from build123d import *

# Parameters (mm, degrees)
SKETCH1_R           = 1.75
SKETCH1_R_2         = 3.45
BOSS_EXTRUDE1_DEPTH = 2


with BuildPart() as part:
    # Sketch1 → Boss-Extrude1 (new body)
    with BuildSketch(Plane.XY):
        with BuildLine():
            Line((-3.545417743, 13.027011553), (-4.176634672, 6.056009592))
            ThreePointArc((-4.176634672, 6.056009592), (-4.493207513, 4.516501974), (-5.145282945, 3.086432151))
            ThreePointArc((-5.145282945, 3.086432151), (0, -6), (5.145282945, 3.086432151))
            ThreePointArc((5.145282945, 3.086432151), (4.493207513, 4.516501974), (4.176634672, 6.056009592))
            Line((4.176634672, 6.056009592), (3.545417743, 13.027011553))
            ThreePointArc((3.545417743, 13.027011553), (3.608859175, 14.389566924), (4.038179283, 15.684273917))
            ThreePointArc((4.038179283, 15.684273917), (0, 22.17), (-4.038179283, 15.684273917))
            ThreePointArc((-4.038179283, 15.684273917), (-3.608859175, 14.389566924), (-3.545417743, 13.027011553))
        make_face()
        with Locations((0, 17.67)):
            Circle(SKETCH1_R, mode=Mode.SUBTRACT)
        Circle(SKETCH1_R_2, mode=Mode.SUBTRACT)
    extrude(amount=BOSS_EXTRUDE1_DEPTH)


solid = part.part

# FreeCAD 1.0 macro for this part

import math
import FreeCAD as App
import Part
import Sketcher
Q = App.Units.Quantity

doc = App.newDocument("Part")
body = doc.addObject("PartDesign::Body", "Body")

# Sketch on XY plane
sketch1 = body.newObject("Sketcher::SketchObject", "Sketch")
sketch1.AttachmentSupport = (doc.getObject("XY_Plane"), [""])
sketch1.MapMode = "FlatFace"
sketch1.addGeometry([
    Part.LineSegment(App.Vector(-3.545418, 13.027012, 0), App.Vector(-4.176635, 6.05601, 0)),  # 0
    Part.ArcOfCircle(Part.Circle(App.Vector(-11.148113, 6.68727, 0), App.Vector(0, 0, 1), 7), math.radians(-30.957717), math.radians(-5.173963)),  # 1
    Part.ArcOfCircle(Part.Circle(App.Vector(0, 0, 0), App.Vector(0, 0, 1), 6), math.radians(149.042283), math.radians(390.957717)),  # 2
    Part.ArcOfCircle(Part.Circle(App.Vector(11.148113, 6.68727, 0), App.Vector(0, 0, 1), 7), math.radians(-174.826037), math.radians(-149.042283)),  # 3
    Part.LineSegment(App.Vector(4.176635, 6.05601, 0), App.Vector(3.545418, 13.027012, 0)),  # 4
    Part.ArcOfCircle(Part.Circle(App.Vector(8.525045, 13.477912, 0), App.Vector(0, 0, 1), 5), math.radians(153.814903), math.radians(185.173963)),  # 5
    Part.ArcOfCircle(Part.Circle(App.Vector(0, 17.67, 0), App.Vector(0, 0, 1), 4.5), math.radians(-26.185097), math.radians(206.185097)),  # 6
    Part.ArcOfCircle(Part.Circle(App.Vector(-8.525045, 13.477912, 0), App.Vector(0, 0, 1), 5), math.radians(-5.173963), math.radians(26.185097)),  # 7
    Part.Circle(App.Vector(0, 0, 0), App.Vector(0, 0, 1), 3.45),  # 8
    Part.Circle(App.Vector(0, 17.67, 0), App.Vector(0, 0, 1), 1.75),  # 9
], False)
sketch1.addConstraint([
    Sketcher.Constraint("Tangent", 0, 2, 1, 2),
    Sketcher.Constraint("Tangent", 1, 1, 2, 1),
    Sketcher.Constraint("Tangent", 2, 2, 3, 2),
    Sketcher.Constraint("Tangent", 3, 1, 4, 1),
    Sketcher.Constraint("Tangent", 4, 2, 5, 2),
    Sketcher.Constraint("Tangent", 5, 1, 6, 1),
    Sketcher.Constraint("Tangent", 6, 2, 7, 2),
    Sketcher.Constraint("Tangent", 7, 1, 0, 1),
    Sketcher.Constraint("Coincident", 2, 3, -1, 1),
    Sketcher.Constraint("Coincident", 8, 3, -1, 1),
    Sketcher.Constraint("Coincident", 9, 3, 6, 3),
    Sketcher.Constraint("Equal", 1, 3),
    Sketcher.Constraint("Equal", 5, 7),
    Sketcher.Constraint("Symmetric", 5, 3, 7, 3, -2),
    Sketcher.Constraint("Horizontal", 1, 3, 3, 3),
    Sketcher.Constraint("Radius", 1, Q("7 mm")),
    Sketcher.Constraint("Radius", 2, Q("6 mm")),
    Sketcher.Constraint("Radius", 5, Q("5 mm")),
    Sketcher.Constraint("Diameter", 8, Q("6.9 mm")),
    Sketcher.Constraint("Diameter", 9, Q("3.5 mm")),
    Sketcher.Constraint("Radius", 6, Q("4.5 mm")),
    Sketcher.Constraint("DistanceY", -1, 1, 6, 3, Q("17.67 mm")),
    Sketcher.Constraint("DistanceY", 3, 1, 4, 2, Q("6.971002 mm")),
    Sketcher.Constraint("DistanceY", 4, 2, 5, 3, Q("0.4509 mm")),
])
pad1 = body.newObject("PartDesign::Pad", "Pad")
pad1.Profile = sketch1
pad1.Length = 2

doc.recompute()
